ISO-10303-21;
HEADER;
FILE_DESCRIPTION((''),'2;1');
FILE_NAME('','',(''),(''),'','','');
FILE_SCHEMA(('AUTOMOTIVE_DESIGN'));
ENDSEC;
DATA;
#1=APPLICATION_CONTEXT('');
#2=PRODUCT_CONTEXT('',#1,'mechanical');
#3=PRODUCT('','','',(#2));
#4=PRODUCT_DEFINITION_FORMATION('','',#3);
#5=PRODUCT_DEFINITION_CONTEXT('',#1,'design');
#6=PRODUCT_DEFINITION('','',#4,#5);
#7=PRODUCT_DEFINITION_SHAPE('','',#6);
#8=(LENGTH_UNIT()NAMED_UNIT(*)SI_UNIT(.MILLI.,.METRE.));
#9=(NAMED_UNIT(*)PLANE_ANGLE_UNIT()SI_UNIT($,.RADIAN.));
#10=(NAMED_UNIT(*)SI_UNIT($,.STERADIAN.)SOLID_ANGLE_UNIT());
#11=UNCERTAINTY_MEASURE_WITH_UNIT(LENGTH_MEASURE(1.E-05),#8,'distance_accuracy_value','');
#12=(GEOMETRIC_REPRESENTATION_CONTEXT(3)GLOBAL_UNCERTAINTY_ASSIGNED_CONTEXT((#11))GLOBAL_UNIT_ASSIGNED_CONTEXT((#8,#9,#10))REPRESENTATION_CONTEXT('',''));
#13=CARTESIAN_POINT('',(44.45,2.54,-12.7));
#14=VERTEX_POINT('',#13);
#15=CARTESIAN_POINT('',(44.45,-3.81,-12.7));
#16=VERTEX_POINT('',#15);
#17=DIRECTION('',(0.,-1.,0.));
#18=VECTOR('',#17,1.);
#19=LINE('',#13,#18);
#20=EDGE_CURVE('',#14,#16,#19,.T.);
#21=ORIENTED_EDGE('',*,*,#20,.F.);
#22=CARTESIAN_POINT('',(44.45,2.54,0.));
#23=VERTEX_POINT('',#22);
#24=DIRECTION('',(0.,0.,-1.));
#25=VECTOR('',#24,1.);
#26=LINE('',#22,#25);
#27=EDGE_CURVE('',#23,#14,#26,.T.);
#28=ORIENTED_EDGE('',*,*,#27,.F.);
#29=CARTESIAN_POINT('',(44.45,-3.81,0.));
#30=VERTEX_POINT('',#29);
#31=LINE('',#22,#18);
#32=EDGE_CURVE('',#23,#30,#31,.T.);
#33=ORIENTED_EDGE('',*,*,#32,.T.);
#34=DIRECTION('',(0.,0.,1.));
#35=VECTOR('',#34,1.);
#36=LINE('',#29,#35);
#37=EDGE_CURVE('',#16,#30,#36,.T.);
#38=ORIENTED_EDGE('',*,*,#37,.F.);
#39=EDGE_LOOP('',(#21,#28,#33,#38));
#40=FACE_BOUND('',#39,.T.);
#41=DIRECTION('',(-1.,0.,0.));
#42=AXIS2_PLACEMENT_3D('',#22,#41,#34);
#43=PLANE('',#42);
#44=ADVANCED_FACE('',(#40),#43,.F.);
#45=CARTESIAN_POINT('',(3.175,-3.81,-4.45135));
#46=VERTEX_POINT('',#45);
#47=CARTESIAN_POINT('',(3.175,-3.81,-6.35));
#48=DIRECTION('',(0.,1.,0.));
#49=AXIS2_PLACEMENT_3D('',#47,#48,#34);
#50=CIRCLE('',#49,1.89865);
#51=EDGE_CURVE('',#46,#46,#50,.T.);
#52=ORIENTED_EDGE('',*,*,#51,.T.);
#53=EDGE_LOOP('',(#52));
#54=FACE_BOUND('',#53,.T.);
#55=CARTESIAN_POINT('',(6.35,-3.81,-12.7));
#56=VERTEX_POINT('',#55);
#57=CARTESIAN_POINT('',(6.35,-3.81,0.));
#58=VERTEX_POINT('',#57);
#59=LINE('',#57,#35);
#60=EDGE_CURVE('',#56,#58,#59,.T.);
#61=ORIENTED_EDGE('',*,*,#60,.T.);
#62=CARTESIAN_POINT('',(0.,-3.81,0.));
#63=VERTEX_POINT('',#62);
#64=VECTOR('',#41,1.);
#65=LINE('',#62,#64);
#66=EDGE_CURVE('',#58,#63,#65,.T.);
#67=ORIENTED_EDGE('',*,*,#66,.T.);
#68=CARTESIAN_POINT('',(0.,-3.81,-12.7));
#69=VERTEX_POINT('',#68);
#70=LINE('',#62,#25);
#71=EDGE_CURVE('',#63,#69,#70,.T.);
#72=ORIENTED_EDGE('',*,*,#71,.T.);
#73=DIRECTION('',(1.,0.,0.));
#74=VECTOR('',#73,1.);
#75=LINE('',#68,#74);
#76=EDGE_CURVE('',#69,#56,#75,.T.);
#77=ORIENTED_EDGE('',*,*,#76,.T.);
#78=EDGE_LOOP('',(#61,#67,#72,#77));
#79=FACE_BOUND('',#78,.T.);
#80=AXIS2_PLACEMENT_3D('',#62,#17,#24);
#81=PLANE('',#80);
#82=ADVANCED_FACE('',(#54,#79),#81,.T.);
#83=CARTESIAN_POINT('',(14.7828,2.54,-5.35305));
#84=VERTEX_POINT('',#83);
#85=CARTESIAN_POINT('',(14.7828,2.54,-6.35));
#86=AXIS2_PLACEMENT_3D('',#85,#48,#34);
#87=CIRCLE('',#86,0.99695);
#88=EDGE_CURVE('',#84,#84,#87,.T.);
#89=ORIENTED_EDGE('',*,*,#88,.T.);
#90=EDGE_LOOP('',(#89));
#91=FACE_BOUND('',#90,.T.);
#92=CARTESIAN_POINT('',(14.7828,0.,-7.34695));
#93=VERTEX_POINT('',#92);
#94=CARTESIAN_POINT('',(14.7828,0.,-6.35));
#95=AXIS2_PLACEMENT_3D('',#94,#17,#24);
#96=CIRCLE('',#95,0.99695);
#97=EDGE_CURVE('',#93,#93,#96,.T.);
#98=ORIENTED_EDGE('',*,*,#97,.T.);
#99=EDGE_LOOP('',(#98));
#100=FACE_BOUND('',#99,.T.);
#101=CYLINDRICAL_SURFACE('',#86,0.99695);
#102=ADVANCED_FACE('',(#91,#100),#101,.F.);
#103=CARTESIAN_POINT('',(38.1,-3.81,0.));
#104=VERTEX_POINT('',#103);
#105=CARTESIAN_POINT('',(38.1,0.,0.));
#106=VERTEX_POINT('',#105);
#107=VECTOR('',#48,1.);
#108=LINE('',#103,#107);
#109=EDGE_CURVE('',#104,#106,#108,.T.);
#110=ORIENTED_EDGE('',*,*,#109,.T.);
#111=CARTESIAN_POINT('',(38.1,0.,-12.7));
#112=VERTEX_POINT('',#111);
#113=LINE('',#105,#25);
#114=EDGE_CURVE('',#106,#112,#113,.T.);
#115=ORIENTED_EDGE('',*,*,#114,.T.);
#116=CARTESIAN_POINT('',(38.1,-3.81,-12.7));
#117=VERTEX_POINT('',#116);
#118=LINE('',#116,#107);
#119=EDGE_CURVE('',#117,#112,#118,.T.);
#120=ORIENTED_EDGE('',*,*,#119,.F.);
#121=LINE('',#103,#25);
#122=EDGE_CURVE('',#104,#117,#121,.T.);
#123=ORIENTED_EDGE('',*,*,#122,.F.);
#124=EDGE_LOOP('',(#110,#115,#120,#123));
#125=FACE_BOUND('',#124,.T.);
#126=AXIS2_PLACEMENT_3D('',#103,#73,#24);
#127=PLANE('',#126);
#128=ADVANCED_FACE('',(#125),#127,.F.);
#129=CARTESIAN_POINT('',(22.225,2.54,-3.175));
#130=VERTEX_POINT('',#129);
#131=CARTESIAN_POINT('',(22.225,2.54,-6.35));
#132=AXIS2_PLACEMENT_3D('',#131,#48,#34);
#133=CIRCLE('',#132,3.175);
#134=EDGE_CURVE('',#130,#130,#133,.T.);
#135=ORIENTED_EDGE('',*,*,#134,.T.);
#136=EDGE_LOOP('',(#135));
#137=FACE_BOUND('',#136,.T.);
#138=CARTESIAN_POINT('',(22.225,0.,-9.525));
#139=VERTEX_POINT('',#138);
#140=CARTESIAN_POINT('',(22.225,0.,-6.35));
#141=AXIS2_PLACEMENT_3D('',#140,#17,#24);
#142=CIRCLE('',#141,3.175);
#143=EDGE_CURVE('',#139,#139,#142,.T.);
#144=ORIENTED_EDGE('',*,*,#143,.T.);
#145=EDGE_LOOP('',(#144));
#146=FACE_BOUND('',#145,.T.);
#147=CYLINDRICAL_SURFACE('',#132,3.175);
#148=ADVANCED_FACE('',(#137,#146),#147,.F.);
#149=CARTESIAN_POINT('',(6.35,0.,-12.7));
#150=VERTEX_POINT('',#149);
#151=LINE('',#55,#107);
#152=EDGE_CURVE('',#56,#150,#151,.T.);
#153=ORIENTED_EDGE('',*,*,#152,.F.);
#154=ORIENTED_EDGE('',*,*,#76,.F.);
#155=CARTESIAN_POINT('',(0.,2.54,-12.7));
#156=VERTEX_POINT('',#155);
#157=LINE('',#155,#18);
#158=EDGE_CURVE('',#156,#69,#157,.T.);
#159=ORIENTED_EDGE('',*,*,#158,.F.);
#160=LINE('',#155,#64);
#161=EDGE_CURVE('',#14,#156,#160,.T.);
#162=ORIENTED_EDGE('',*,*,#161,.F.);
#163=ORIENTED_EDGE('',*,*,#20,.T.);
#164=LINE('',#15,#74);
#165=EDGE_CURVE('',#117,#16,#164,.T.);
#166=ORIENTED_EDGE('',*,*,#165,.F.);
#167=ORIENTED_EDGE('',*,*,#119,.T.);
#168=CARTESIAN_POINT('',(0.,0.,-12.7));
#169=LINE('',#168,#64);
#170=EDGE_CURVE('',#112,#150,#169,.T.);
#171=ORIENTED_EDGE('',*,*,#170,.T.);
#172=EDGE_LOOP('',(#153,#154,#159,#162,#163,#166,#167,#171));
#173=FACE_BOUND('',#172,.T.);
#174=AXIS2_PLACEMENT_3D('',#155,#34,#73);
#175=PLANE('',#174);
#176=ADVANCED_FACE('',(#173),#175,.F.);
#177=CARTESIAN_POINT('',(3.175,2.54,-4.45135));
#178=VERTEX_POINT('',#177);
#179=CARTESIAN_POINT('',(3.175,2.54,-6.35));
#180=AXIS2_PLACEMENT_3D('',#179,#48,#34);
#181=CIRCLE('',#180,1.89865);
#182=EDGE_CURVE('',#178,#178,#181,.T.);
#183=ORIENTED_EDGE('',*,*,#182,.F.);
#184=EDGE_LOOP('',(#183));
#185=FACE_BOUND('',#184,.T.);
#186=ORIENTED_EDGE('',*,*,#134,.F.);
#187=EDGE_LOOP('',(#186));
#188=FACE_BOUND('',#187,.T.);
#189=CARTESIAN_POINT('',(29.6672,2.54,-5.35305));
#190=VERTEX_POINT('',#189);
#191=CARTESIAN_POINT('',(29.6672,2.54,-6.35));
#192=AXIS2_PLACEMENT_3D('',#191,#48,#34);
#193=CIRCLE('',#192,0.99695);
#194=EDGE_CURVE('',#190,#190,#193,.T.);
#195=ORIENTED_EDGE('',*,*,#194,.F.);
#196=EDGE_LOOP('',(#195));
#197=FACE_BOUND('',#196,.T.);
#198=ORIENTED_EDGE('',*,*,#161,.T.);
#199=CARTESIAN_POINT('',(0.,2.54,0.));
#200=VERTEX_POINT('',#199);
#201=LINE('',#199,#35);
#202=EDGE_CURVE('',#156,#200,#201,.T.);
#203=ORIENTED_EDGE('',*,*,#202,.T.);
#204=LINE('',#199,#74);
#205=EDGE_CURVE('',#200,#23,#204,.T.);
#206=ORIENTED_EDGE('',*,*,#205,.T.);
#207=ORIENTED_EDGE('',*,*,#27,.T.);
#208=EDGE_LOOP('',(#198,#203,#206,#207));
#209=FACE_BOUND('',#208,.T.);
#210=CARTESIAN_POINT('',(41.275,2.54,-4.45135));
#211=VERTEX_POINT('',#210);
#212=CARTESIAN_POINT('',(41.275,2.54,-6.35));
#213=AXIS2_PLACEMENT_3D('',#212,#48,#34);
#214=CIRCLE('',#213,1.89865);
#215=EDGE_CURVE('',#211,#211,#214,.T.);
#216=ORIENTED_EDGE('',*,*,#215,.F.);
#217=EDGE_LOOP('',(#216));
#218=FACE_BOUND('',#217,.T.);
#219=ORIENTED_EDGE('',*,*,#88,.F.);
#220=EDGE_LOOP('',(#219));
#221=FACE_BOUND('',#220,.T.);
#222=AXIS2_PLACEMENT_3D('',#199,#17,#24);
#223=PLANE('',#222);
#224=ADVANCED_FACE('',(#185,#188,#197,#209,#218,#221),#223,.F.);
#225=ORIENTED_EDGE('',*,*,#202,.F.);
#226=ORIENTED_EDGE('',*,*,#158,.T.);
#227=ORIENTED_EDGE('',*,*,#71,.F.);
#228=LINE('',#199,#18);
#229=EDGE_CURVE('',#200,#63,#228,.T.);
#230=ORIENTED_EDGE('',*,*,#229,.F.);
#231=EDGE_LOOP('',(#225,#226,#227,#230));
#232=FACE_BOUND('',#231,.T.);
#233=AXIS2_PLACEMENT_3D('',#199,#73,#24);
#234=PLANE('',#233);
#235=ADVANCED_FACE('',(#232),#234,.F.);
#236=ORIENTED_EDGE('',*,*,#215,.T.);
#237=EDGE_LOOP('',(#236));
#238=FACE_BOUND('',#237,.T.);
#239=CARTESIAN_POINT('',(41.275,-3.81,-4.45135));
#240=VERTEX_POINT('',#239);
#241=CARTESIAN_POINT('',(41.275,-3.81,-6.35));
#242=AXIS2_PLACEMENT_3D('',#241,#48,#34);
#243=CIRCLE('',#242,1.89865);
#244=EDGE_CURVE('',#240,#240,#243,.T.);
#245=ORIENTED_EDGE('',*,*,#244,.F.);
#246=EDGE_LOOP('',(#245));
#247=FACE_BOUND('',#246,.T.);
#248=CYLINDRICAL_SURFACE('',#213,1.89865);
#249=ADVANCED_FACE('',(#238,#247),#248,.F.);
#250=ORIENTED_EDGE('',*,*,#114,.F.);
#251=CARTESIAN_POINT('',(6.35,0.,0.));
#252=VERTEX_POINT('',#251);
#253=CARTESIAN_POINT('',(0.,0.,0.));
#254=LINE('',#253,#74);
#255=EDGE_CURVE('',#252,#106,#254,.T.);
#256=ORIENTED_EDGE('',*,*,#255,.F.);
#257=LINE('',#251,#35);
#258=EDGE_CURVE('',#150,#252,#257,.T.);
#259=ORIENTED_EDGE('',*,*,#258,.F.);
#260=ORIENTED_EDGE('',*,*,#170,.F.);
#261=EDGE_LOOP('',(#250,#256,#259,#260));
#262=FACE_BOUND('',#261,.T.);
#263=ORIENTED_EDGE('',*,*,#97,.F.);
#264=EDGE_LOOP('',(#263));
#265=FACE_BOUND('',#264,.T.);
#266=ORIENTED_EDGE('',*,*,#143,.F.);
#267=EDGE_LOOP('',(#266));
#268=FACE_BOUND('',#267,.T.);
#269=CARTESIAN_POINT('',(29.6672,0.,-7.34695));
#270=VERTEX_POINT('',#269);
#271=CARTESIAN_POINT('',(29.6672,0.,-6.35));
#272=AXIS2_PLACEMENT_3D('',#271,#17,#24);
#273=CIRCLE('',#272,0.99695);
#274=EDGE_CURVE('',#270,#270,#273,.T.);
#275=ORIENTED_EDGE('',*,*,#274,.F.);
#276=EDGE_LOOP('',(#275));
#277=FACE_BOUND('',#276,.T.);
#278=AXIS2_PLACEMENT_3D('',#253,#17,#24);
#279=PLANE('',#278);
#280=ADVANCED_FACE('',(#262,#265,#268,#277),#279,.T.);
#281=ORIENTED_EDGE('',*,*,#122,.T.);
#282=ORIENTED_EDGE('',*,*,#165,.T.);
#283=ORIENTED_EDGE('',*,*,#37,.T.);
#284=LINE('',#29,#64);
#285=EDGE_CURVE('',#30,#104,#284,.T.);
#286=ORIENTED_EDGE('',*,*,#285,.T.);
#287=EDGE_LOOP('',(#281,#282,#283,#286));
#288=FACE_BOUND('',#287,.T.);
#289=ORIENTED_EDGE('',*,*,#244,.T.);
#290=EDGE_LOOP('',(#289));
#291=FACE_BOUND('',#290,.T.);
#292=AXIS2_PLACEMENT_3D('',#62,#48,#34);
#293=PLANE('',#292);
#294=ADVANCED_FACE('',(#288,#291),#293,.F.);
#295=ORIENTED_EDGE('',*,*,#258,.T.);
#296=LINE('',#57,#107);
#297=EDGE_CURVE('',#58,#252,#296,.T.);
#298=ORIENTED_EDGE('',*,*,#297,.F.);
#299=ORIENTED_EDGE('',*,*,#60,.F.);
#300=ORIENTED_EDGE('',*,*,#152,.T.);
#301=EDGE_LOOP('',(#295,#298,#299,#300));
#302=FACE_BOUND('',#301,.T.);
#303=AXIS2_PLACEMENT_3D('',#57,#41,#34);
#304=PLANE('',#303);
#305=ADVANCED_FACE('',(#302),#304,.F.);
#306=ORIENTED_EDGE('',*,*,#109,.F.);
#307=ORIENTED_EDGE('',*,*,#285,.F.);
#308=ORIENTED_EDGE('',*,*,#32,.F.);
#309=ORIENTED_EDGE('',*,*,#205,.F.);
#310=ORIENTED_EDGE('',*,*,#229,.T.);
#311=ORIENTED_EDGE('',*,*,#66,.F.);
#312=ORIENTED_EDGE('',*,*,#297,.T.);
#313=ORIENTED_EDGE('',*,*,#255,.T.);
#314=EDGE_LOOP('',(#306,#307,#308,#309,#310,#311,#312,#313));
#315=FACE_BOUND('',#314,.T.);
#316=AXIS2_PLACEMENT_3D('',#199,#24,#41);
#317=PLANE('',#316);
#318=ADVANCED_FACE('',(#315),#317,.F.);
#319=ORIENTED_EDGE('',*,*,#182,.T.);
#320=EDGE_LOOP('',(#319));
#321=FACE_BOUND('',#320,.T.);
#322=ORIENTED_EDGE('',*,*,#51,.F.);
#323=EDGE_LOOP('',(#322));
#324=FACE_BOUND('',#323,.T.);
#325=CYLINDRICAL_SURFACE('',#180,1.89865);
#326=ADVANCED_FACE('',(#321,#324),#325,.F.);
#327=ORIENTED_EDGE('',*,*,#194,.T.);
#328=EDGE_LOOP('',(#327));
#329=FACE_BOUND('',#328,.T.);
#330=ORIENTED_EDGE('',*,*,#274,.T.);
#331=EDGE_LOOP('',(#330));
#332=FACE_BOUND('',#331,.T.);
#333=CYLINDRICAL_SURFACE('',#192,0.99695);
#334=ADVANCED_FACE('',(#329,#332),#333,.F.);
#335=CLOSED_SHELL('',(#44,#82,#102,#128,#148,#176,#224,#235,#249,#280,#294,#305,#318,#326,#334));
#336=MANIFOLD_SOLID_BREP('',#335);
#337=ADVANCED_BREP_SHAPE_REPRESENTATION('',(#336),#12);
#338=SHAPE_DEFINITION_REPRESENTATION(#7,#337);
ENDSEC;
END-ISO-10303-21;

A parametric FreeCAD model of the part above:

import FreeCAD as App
import Part
import Sketcher

V = App.Vector
Q = App.Units.Quantity

doc = App.newDocument("Part")
params = doc.addObject("Spreadsheet::Sheet", "Params")
for row, (alias, value) in enumerate([
    ("sketch1_height", "0.5 in"),
    ("sketch1_width", "1.75 in"),
    ("pad1_length", "0.1 in"),
    ("sketch2_height", "0.5 in"),
    ("sketch2_width", "0.25 in"),
    ("pad2_length", "0.15 in"),
    ("hole_diameter", "0.1495 in"),
    ("hole2_diameter", "0.0785 in"),
    ("sketch5_diameter", "0.25 in"),
    ("hole3_diameter", "0.25 in"),
], start=1):
    params.set(f"A{row}", alias)
    params.set(f"B{row}", "=" + value)
    params.setAlias(f"B{row}", alias)

body = doc.addObject("PartDesign::Body", "Body")

sketch1 = body.newObject("Sketcher::SketchObject", "Sketch")
sketch1.AttachmentSupport = (doc.getObject("XZ_Plane"), [""])
sketch1.MapMode = "FlatFace"
sketch1.addGeometry([
    Part.LineSegment(V(0, -13, 0), V(0, 0, 0)),
    Part.LineSegment(V(0, 0, 0), V(44, 0, 0)),
    Part.LineSegment(V(44, 0, 0), V(44, -13, 0)),
    Part.LineSegment(V(44, -13, 0), V(0, -13, 0)),
], False)
sketch1.addConstraint([
    Sketcher.Constraint("Coincident", 0, 2, 1, 1),
    Sketcher.Constraint("Coincident", 1, 2, 2, 1),
    Sketcher.Constraint("Coincident", 2, 2, 3, 1),
    Sketcher.Constraint("Coincident", 3, 2, 0, 1),
    Sketcher.Constraint("Vertical", 0),
    Sketcher.Constraint("Horizontal", 1),
    Sketcher.Constraint("Vertical", 2),
    Sketcher.Constraint("Horizontal", 3),
    Sketcher.Constraint("Coincident", 0, 2, -1, 1),
    Sketcher.Constraint("DistanceY", 0, 1, 0, 2, Q("0.5 in")),
    Sketcher.Constraint("DistanceX", 1, 1, 1, 2, Q("1.75 in")),
])
sketch1.setExpression("Constraints[9]", "Params.sketch1_height")
sketch1.setExpression("Constraints[10]", "Params.sketch1_width")
pad1 = body.newObject("PartDesign::Pad", "Pad")
pad1.Profile = sketch1
pad1.setExpression("Length", "Params.pad1_length")
pad1.Reversed = True

sketch2 = body.newObject("Sketcher::SketchObject", "Sketch001")
sketch2.AttachmentSupport = (doc.getObject("XZ_Plane"), [""])
sketch2.MapMode = "FlatFace"
sketch2.addGeometry([
    Part.LineSegment(V(0, 0, 0), V(0, -13, 0)),
    Part.LineSegment(V(0, -13, 0), V(6, -13, 0)),
    Part.LineSegment(V(6, -13, 0), V(6, 0, 0)),
    Part.LineSegment(V(6, 0, 0), V(0, 0, 0)),
    Part.LineSegment(V(38, 0, 0), V(38, -13, 0)),
    Part.LineSegment(V(38, -13, 0), V(44, -13, 0)),
    Part.LineSegment(V(44, -13, 0), V(44, 0, 0)),
    Part.LineSegment(V(44, 0, 0), V(38, 0, 0)),
], False)
sketch2.addConstraint([
    Sketcher.Constraint("Coincident", 0, 2, 1, 1),
    Sketcher.Constraint("Coincident", 1, 2, 2, 1),
    Sketcher.Constraint("Coincident", 2, 2, 3, 1),
    Sketcher.Constraint("Coincident", 3, 2, 0, 1),
    Sketcher.Constraint("Coincident", 4, 2, 5, 1),
    Sketcher.Constraint("Coincident", 5, 2, 6, 1),
    Sketcher.Constraint("Coincident", 6, 2, 7, 1),
    Sketcher.Constraint("Coincident", 7, 2, 4, 1),
    Sketcher.Constraint("Vertical", 0),
    Sketcher.Constraint("Horizontal", 1),
    Sketcher.Constraint("Vertical", 2),
    Sketcher.Constraint("Horizontal", 3),
    Sketcher.Constraint("Vertical", 4),
    Sketcher.Constraint("Horizontal", 5),
    Sketcher.Constraint("Vertical", 6),
    Sketcher.Constraint("Horizontal", 7),
    Sketcher.Constraint("Coincident", 3, 2, -1, 1),
    Sketcher.Constraint("PointOnObject", 6, 2, -1),
    Sketcher.Constraint("Horizontal", 1, 2, 4, 2),
    Sketcher.Constraint("Equal", 3, 5),
    Sketcher.Constraint("DistanceY", 0, 2, 0, 1, Q("0.5 in")),
    Sketcher.Constraint("DistanceX", 1, 1, 1, 2, Q("0.25 in")),
    Sketcher.Constraint("DistanceX", -1, 1, 4, 2, Q("1.5 in")),
])
sketch2.setExpression("Constraints[20]", "Params.sketch2_height")
sketch2.setExpression("Constraints[21]", "Params.sketch2_width")
pad2 = body.newObject("PartDesign::Pad", "Pad001")
pad2.Profile = sketch2
pad2.setExpression("Length", "Params.pad2_length")

sketch3 = body.newObject("Sketcher::SketchObject", "Sketch002")
sketch3.AttachmentSupport = (doc.getObject("XZ_Plane"), [""])
sketch3.MapMode = "FlatFace"
sketch3.AttachmentOffset = App.Placement(V(0, 0, -0.1 * 25.4), App.Rotation())
sketch3.addGeometry([
    Part.Circle(V(3.2, -6.3, 0), V(0, 0, 1), 1.9),
    Part.Circle(V(41.3, -6.3, 0), V(0, 0, 1), 1.9),
], False)
sketch3.addConstraint([
    Sketcher.Constraint("Equal", 0, 1),
    Sketcher.Constraint("Horizontal", 0, 3, 1, 3),
    Sketcher.Constraint("Diameter", 0, Q("0.1495 in")),
    Sketcher.Constraint("DistanceX", 0, 3, 1, 3, Q("1.5 in")),
    Sketcher.Constraint("DistanceY", 0, 3, -1, 1, Q("0.25 in")),
    Sketcher.Constraint("DistanceX", -1, 1, 0, 3, Q("0.125 in")),
])
doc.recompute()
hole = body.newObject("PartDesign::Hole", "Hole")
hole.Profile = sketch3
hole.ThreadType = "None"
hole.setExpression("Diameter", "Params.hole_diameter")
hole.DepthType = "ThroughAll"
hole.Reversed = True

sketch4 = body.newObject("Sketcher::SketchObject", "Sketch003")
sketch4.AttachmentSupport = (doc.getObject("XZ_Plane"), [""])
sketch4.MapMode = "FlatFace"
sketch4.AttachmentOffset = App.Placement(V(0, 0, -0.1 * 25.4), App.Rotation())
sketch4.addGeometry([
    Part.Circle(V(14.8, -6.3, 0), V(0, 0, 1), 1),
    Part.Circle(V(29.7, -6.3, 0), V(0, 0, 1), 1),
], False)
sketch4.addConstraint([
    Sketcher.Constraint("Equal", 0, 1),
    Sketcher.Constraint("Horizontal", 0, 3, 1, 3),
    Sketcher.Constraint("Diameter", 0, Q("0.0785 in")),
    Sketcher.Constraint("DistanceY", 0, 3, -1, 1, Q("0.25 in")),
    Sketcher.Constraint("DistanceX", -1, 1, 0, 3, Q("0.582 in")),
    Sketcher.Constraint("DistanceX", -1, 1, 1, 3, Q("1.168 in")),
])
doc.recompute()
hole2 = body.newObject("PartDesign::Hole", "Hole001")
hole2.Profile = sketch4
hole2.ThreadType = "None"
hole2.setExpression("Diameter", "Params.hole2_diameter")
hole2.DepthType = "ThroughAll"
hole2.Reversed = True

sketch5 = body.newObject("Sketcher::SketchObject", "Sketch004")
sketch5.AttachmentSupport = (doc.getObject("XZ_Plane"), [""])
sketch5.MapMode = "FlatFace"
sketch5.AttachmentOffset = App.Placement(V(0, 0, -0.1 * 25.4), App.Rotation())
sketch5.addGeometry(Part.Circle(V(22.2, -6.3, 0), V(0, 0, 1), 3.2), False)
sketch5.addConstraint([
    Sketcher.Constraint("Diameter", 0, Q("0.25 in")),
    Sketcher.Constraint("DistanceY", 0, 3, -1, 1, Q("0.25 in")),
    Sketcher.Constraint("DistanceX", -1, 1, 0, 3, Q("0.875 in")),
])
sketch5.setExpression("Constraints[0]", "Params.sketch5_diameter")
doc.recompute()
hole3 = body.newObject("PartDesign::Hole", "Hole002")
hole3.Profile = sketch5
hole3.ThreadType = "None"
hole3.setExpression("Diameter", "Params.hole3_diameter")
hole3.DepthType = "ThroughAll"
hole3.Reversed = True

doc.recompute()
